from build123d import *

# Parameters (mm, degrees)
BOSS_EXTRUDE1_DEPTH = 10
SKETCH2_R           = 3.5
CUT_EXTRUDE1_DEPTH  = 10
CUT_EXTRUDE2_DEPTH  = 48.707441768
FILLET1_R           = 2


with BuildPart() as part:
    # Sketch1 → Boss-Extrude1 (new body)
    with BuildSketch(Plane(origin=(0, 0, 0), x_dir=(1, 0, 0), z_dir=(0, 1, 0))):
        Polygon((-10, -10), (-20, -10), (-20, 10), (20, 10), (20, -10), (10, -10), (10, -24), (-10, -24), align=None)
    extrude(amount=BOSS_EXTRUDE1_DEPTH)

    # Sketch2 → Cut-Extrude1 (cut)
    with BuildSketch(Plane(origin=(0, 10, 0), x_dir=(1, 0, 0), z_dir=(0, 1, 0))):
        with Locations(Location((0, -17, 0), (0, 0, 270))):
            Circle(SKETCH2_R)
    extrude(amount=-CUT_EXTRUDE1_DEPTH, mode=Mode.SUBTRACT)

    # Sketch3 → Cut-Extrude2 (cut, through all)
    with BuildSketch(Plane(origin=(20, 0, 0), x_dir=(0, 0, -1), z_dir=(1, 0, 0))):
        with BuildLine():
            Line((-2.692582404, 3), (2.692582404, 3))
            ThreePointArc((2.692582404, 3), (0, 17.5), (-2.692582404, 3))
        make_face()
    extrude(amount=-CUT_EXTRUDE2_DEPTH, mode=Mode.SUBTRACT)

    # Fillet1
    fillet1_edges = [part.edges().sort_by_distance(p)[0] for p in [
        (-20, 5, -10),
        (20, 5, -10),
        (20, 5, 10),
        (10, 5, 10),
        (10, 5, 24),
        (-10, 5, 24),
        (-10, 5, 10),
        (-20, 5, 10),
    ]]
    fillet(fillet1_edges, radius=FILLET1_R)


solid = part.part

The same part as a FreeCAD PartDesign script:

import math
import FreeCAD as App
import Part
import Sketcher
Q = App.Units.Quantity


def edges_at(feature, points):
    """Names of the edges that pass closest to the given points."""
    edges = feature.Shape.Edges
    near = lambda p: min(range(len(edges)), key=lambda i: edges[i].distToShape(Part.Vertex(*p))[0])
    return sorted({f"Edge{near(p) + 1}" for p in points})


def add_polygon(sketch, points):
    """Adds a closed chain of lines whose ends are joined by coincident constraints."""
    first, n = sketch.GeometryCount, len(points)
    for a, b in zip(points, points[1:] + points[:1]):
        sketch.addGeometry(Part.LineSegment(App.Vector(*a, 0), App.Vector(*b, 0)), False)
    for i in range(n):
        sketch.addConstraint(Sketcher.Constraint("Coincident", first + i, 2, first + (i + 1) % n, 1))

doc = App.newDocument("Part")
body = doc.addObject("PartDesign::Body", "Body")

# Sketch on XZ plane
sketch1 = doc.addObject("Sketcher::SketchObject", "Sketch")
body.addObject(sketch1)
sketch1.AttachmentSupport = (doc.XZ_Plane, [""])
sketch1.MapMode = "FlatFace"
add_polygon(sketch1, [(-20, 10), (-10, 10), (-10, 24), (10, 24), (10, 10), (20, 10), (20, -10), (-20, -10)])  # lines 0-7
sketch1.addConstraint([
    Sketcher.Constraint("Horizontal", 0),
    Sketcher.Constraint("Vertical", 1),
    Sketcher.Constraint("Horizontal", 2),
    Sketcher.Constraint("Vertical", 3),
    Sketcher.Constraint("Horizontal", 4),
    Sketcher.Constraint("Vertical", 5),
    Sketcher.Constraint("Horizontal", 6),
    Sketcher.Constraint("Vertical", 7),
    Sketcher.Constraint("Symmetric", 4, 2, 6, 2, -1, 1),
    Sketcher.Constraint("Symmetric", 0, 2, 3, 2, -2),
    Sketcher.Constraint("Equal", 2, 5),
    Sketcher.Constraint("DistanceX", 0, 1, 0, 2, Q("10 mm")),
    Sketcher.Constraint("DistanceX", 2, 1, 2, 2, Q("20 mm")),
    Sketcher.Constraint("DistanceY", 1, 1, 1, 2, Q("14 mm")),
])
pad1 = doc.addObject("PartDesign::Pad", "Pad")
body.addObject(pad1)
pad1.Profile = sketch1
pad1.Length = 10
pad1.Reversed = True

# Sketch on XZ plane
sketch2 = doc.addObject("Sketcher::SketchObject", "Sketch001")
body.addObject(sketch2)
sketch2.AttachmentSupport = (doc.XZ_Plane, [""])
sketch2.MapMode = "FlatFace"
sketch2.AttachmentOffset = App.Placement(App.Vector(0, 0, -10), App.Rotation())
sketch2.addGeometry(Part.Circle(App.Vector(0, 17, 0), App.Vector(0, 0, 1), 3.5), False)
sketch2.addConstraint([
    Sketcher.Constraint("PointOnObject", 0, 3, -2),
    Sketcher.Constraint("Diameter", 0, Q("7 mm")),
    Sketcher.Constraint("DistanceY", -1, 1, 0, 3, Q("17 mm")),
])
pocket1 = doc.addObject("PartDesign::Pocket", "Pocket")
body.addObject(pocket1)
pocket1.Profile = sketch2
pocket1.Length = 10
pocket1.Reversed = True

# Sketch on YZ plane
sketch3 = doc.addObject("Sketcher::SketchObject", "Sketch002")
body.addObject(sketch3)
sketch3.AttachmentSupport = (doc.YZ_Plane, [""])
sketch3.MapMode = "FlatFace"
sketch3.AttachmentOffset = App.Placement(App.Vector(0, 0, 20), App.Rotation())
sketch3.addGeometry([
    Part.LineSegment(App.Vector(3, 3, 0), App.Vector(3, -3, 0)),
    Part.ArcOfCircle(Part.Circle(App.Vector(10, 0, 0), App.Vector(0, 0, 1), 8), math.radians(-159), math.radians(159)),
], False)
sketch3.addConstraint([
    Sketcher.Constraint("Coincident", 0, 1, 1, 2),
    Sketcher.Constraint("Coincident", 1, 1, 0, 2),
    Sketcher.Constraint("Vertical", 0),
    Sketcher.Constraint("PointOnObject", 1, 3, -1),
    Sketcher.Constraint("Radius", 1, Q("7.5 mm")),
    Sketcher.Constraint("DistanceX", -1, 1, 1, 3, Q("10 mm")),
    Sketcher.Constraint("DistanceX", -1, 1, 0, 1, Q("3 mm")),
])
pocket2 = doc.addObject("PartDesign::Pocket", "Pocket001")
body.addObject(pocket2)
pocket2.Profile = sketch3
pocket2.Type = "ThroughAll"
doc.recompute()

fillet = doc.addObject("PartDesign::Fillet", "Fillet")
body.addObject(fillet)
fillet.Base = (pocket2, edges_at(pocket2, [
    (-20, 5, -10),
    (20, 5, -10),
    (20, 5, 10),
    (10, 5, 10),
    (10, 5, 24),
    (-10, 5, 24),
    (-10, 5, 10),
    (-20, 5, 10),
]))
fillet.Radius = 2

doc.recompute()
